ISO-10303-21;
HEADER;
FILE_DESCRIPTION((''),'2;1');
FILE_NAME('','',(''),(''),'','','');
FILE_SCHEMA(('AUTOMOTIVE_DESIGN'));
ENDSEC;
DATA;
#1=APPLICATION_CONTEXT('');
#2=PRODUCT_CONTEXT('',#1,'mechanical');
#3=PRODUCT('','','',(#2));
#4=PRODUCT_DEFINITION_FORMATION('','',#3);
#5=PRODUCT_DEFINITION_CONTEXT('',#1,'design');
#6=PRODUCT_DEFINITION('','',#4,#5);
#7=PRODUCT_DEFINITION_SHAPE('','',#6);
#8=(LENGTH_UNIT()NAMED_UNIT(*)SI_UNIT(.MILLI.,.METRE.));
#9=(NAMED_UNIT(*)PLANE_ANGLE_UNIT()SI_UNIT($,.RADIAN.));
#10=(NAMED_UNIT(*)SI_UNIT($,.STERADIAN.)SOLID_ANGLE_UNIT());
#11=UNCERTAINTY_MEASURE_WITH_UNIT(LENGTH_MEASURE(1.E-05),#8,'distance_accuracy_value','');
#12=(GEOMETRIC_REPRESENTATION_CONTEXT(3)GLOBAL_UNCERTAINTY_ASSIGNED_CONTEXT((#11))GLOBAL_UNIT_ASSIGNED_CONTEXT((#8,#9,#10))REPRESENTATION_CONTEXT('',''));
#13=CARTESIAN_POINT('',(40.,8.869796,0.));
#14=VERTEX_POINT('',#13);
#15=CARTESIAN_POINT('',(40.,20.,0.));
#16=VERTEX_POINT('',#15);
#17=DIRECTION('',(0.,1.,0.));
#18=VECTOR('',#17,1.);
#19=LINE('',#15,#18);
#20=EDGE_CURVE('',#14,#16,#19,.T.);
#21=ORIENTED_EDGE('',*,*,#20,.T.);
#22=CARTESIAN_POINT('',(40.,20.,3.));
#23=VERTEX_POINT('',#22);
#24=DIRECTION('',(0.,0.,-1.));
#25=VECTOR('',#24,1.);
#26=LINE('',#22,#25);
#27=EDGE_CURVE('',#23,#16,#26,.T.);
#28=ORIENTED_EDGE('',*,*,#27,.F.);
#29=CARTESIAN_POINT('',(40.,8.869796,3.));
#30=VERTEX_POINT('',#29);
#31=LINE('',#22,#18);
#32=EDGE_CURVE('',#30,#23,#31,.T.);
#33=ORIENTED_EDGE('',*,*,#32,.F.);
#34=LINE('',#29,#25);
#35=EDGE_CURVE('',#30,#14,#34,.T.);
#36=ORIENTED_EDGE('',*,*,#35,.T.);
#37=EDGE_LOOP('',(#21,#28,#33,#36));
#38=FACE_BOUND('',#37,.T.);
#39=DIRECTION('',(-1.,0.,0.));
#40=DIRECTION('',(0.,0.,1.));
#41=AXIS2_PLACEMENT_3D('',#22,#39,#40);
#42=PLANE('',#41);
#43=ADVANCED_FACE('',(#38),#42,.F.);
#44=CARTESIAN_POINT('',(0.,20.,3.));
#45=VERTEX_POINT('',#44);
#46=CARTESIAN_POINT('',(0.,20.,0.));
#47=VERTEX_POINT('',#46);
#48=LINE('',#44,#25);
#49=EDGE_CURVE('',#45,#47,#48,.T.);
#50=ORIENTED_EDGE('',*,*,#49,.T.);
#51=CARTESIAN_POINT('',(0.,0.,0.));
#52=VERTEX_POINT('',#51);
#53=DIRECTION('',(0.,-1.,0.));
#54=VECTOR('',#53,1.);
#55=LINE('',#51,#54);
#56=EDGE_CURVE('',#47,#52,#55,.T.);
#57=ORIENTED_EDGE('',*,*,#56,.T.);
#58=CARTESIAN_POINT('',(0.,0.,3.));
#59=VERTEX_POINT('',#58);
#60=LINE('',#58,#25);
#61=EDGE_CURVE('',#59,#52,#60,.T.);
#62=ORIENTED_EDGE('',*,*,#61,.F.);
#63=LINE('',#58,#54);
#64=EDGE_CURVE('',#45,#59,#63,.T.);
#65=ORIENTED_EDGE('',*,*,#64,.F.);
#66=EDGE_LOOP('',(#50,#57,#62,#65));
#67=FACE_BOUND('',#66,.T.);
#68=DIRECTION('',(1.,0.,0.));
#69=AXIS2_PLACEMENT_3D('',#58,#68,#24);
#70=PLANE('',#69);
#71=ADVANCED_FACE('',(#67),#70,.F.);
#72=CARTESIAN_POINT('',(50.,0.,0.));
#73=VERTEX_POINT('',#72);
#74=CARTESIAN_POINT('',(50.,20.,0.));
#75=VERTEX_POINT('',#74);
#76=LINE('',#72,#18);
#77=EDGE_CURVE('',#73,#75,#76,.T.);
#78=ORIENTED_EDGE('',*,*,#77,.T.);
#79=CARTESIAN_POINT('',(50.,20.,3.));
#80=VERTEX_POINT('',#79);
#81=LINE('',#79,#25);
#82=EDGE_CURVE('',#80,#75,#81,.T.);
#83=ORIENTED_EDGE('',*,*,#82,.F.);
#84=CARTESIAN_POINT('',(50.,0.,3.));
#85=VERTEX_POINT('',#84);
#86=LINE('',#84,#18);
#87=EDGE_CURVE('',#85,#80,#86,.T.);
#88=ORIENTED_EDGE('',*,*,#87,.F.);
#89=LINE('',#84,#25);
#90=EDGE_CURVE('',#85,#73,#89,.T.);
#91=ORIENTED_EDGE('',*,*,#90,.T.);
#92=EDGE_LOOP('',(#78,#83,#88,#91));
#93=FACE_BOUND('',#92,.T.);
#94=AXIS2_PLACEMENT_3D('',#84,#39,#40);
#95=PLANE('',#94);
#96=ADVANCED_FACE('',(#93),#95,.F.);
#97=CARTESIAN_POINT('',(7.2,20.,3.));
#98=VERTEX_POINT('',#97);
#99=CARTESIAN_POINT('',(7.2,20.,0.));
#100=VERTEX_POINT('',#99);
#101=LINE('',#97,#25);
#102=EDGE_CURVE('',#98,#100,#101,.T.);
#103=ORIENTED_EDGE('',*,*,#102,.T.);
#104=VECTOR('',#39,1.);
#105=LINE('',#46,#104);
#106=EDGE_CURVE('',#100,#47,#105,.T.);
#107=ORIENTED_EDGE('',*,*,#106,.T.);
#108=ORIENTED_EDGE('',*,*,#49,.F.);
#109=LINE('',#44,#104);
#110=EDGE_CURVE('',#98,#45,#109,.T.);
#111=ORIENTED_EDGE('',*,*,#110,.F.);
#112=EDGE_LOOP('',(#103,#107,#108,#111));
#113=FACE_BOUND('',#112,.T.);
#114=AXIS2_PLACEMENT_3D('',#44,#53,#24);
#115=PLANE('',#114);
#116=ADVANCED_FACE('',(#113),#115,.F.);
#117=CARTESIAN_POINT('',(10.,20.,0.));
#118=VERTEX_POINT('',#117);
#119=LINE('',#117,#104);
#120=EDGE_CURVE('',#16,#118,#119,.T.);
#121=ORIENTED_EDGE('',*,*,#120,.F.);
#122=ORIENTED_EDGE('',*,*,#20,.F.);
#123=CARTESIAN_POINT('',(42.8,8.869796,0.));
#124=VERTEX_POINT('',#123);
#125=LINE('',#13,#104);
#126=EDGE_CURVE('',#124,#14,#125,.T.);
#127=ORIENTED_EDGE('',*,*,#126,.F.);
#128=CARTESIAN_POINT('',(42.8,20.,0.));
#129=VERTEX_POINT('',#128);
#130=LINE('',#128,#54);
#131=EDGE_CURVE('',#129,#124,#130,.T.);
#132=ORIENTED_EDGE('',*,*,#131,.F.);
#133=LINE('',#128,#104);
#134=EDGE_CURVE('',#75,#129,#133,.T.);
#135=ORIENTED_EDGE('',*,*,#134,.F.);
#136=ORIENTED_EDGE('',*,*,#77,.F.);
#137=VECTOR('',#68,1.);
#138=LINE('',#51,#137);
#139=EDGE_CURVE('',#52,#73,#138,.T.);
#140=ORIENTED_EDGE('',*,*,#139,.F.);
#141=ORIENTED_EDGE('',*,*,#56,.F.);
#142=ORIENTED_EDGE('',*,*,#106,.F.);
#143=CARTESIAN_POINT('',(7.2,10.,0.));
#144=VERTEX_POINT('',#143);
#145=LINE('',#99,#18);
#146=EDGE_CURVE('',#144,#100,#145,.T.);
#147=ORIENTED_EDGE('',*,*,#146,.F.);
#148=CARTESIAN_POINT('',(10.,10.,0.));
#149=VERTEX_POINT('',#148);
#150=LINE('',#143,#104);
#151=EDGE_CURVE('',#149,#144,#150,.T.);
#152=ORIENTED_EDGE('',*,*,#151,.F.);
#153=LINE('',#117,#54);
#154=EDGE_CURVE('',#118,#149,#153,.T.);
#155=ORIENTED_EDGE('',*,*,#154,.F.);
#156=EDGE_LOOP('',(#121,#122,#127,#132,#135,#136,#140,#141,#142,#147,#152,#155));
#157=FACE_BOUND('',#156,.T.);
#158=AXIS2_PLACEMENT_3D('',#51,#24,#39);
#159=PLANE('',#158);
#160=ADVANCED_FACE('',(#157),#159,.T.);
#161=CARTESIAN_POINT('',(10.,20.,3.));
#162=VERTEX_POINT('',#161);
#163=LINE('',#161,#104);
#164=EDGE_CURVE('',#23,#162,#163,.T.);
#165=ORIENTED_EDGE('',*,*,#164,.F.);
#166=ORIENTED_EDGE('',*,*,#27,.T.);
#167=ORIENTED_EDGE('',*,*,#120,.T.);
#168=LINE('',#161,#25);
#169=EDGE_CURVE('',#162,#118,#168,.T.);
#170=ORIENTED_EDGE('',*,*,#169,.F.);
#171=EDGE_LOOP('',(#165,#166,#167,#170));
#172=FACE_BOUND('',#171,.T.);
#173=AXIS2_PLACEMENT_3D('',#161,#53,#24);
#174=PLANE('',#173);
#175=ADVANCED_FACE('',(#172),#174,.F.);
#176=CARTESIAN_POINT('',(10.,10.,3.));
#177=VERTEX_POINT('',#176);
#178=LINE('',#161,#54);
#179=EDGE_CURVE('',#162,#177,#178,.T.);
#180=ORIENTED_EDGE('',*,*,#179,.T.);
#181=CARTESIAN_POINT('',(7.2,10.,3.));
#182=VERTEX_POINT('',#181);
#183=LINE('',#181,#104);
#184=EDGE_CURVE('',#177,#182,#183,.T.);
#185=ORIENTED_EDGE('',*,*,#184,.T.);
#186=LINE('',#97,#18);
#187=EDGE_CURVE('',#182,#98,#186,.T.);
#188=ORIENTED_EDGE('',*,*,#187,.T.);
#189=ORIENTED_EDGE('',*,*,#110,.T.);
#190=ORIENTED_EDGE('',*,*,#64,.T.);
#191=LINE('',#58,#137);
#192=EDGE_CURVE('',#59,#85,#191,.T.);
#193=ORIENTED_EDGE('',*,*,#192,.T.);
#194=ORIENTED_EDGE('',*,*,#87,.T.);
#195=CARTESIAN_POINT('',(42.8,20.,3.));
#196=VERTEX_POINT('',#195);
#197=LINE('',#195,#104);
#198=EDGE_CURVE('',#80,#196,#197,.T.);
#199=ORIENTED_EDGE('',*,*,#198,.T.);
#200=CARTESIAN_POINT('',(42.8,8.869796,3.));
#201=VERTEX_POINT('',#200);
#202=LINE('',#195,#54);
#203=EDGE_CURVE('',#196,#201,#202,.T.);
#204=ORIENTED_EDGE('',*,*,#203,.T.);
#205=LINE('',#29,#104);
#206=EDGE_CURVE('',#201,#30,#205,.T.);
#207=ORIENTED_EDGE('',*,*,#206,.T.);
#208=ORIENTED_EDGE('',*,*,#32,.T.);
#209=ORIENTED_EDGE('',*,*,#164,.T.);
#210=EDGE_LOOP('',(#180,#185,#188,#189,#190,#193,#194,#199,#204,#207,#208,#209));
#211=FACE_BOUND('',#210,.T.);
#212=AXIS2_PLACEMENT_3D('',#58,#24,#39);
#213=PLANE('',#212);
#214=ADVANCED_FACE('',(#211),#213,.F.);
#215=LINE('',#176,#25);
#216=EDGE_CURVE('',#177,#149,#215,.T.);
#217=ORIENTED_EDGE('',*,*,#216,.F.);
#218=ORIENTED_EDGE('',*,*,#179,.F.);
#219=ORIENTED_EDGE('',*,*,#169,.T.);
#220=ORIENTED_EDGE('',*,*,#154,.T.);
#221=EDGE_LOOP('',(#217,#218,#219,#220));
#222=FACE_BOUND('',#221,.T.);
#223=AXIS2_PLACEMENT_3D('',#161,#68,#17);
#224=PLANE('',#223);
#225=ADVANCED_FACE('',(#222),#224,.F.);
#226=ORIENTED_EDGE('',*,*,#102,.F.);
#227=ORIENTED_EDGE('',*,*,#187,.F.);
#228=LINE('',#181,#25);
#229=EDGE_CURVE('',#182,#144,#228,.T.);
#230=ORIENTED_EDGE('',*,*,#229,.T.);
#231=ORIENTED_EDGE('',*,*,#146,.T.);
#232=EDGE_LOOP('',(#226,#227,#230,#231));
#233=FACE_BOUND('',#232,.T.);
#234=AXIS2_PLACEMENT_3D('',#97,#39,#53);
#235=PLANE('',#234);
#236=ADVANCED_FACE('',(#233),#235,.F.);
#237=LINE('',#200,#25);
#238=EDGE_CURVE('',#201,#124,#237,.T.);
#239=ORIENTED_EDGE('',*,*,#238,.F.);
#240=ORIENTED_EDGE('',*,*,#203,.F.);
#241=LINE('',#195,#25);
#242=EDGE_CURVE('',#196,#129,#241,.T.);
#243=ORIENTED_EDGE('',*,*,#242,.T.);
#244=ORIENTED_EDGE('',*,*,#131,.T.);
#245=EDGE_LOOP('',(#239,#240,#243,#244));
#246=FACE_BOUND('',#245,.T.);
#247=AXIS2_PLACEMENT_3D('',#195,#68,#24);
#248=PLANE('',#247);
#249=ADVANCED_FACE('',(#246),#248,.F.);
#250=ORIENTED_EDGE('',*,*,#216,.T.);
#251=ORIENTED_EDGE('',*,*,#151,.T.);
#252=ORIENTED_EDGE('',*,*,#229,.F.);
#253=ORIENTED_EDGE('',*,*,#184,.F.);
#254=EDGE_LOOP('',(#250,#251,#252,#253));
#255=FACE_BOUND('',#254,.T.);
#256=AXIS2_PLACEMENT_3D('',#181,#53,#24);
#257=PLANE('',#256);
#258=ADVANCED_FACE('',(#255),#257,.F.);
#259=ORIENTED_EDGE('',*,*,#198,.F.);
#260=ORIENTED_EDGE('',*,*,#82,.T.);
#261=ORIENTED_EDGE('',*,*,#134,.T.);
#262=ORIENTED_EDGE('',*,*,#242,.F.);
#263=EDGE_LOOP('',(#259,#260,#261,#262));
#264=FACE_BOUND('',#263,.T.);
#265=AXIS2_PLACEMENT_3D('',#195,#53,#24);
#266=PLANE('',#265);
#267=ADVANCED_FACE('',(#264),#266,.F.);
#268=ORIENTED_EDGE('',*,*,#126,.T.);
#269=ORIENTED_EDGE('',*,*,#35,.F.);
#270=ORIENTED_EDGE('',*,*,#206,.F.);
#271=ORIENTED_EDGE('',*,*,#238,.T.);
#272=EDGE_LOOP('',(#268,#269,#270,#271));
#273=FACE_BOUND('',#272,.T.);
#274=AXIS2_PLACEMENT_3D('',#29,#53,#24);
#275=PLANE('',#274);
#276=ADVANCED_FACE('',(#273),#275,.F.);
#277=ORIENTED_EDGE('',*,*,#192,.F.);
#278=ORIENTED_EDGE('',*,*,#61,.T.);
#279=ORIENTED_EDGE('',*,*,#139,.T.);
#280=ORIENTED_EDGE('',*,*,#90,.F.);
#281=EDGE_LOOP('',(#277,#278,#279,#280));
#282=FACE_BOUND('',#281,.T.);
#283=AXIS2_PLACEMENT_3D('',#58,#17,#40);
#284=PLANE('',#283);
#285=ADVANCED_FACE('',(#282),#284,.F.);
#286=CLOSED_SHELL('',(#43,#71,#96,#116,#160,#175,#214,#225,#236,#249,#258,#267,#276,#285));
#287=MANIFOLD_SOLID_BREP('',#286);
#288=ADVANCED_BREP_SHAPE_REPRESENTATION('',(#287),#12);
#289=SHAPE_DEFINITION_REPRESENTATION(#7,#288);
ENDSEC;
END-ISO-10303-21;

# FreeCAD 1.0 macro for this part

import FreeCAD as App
import Part
import Sketcher

V = App.Vector


def add_polygon(sketch, points):
    """Adds a closed chain of lines whose ends are joined by coincident constraints."""
    first, n = sketch.GeometryCount, len(points)
    for a, b in zip(points, points[1:] + points[:1]):
        sketch.addGeometry(Part.LineSegment(App.Vector(*a, 0), App.Vector(*b, 0)), False)
    for i in range(n):
        sketch.addConstraint(Sketcher.Constraint("Coincident", first + i, 2, first + (i + 1) % n, 1))

doc = App.newDocument("Part")
body = doc.addObject("PartDesign::Body", "Body")

# Sketch on XY plane
sketch1 = doc.addObject("Sketcher::SketchObject", "Sketch")
body.addObject(sketch1)
sketch1.AttachmentSupport = (doc.XY_Plane, [""])
sketch1.MapMode = "FlatFace"
add_polygon(sketch1, [(40, 20), (10, 20), (10, 10), (7.2, 10), (7.2, 20), (0, 20), (0, 0), (50, 0), (50, 20), (42.8, 20), (42.8, 8.9), (40, 8.9)])  # lines 0-11
sketch1.addConstraint(Sketcher.Constraint("Horizontal", 0))
sketch1.addConstraint(Sketcher.Constraint("Vertical", 1))
sketch1.addConstraint(Sketcher.Constraint("Horizontal", 2))
sketch1.addConstraint(Sketcher.Constraint("Vertical", 3))
sketch1.addConstraint(Sketcher.Constraint("Horizontal", 4))
sketch1.addConstraint(Sketcher.Constraint("Vertical", 5))
sketch1.addConstraint(Sketcher.Constraint("Horizontal", 6))
sketch1.addConstraint(Sketcher.Constraint("Vertical", 7))
sketch1.addConstraint(Sketcher.Constraint("Horizontal", 8))
sketch1.addConstraint(Sketcher.Constraint("Vertical", 9))
sketch1.addConstraint(Sketcher.Constraint("Horizontal", 10))
sketch1.addConstraint(Sketcher.Constraint("Vertical", 11))
sketch1.addConstraint(Sketcher.Constraint("Coincident", 5, 2, -1, 1))
sketch1.addConstraint(Sketcher.Constraint("Horizontal", 0, 2, 3, 2))
sketch1.addConstraint(Sketcher.Constraint("Horizontal", 4, 2, 7, 2))
sketch1.addConstraint(Sketcher.Constraint("Equal", 4, 8))
sketch1.addConstraint(Sketcher.Constraint("Equal", 2, 10))
sketch1.addConstraint(Sketcher.Constraint("DistanceX", 0, 2, 0, 1, 30.0))
sketch1.addConstraint(Sketcher.Constraint("DistanceX", 6, 1, 6, 2, 50.0))
sketch1.addConstraint(Sketcher.Constraint("DistanceY", 1, 2, 1, 1, 10.0))
sketch1.addConstraint(Sketcher.Constraint("DistanceY", 5, 2, 5, 1, 20.0))
sketch1.addConstraint(Sketcher.Constraint("DistanceX", 2, 2, 2, 1, 2.8))
sketch1.addConstraint(Sketcher.Constraint("DistanceY", 9, 2, 9, 1, 11.130204))
pad1 = doc.addObject("PartDesign::Pad", "Pad")
body.addObject(pad1)
pad1.Profile = sketch1
pad1.Length = 3

doc.recompute()
